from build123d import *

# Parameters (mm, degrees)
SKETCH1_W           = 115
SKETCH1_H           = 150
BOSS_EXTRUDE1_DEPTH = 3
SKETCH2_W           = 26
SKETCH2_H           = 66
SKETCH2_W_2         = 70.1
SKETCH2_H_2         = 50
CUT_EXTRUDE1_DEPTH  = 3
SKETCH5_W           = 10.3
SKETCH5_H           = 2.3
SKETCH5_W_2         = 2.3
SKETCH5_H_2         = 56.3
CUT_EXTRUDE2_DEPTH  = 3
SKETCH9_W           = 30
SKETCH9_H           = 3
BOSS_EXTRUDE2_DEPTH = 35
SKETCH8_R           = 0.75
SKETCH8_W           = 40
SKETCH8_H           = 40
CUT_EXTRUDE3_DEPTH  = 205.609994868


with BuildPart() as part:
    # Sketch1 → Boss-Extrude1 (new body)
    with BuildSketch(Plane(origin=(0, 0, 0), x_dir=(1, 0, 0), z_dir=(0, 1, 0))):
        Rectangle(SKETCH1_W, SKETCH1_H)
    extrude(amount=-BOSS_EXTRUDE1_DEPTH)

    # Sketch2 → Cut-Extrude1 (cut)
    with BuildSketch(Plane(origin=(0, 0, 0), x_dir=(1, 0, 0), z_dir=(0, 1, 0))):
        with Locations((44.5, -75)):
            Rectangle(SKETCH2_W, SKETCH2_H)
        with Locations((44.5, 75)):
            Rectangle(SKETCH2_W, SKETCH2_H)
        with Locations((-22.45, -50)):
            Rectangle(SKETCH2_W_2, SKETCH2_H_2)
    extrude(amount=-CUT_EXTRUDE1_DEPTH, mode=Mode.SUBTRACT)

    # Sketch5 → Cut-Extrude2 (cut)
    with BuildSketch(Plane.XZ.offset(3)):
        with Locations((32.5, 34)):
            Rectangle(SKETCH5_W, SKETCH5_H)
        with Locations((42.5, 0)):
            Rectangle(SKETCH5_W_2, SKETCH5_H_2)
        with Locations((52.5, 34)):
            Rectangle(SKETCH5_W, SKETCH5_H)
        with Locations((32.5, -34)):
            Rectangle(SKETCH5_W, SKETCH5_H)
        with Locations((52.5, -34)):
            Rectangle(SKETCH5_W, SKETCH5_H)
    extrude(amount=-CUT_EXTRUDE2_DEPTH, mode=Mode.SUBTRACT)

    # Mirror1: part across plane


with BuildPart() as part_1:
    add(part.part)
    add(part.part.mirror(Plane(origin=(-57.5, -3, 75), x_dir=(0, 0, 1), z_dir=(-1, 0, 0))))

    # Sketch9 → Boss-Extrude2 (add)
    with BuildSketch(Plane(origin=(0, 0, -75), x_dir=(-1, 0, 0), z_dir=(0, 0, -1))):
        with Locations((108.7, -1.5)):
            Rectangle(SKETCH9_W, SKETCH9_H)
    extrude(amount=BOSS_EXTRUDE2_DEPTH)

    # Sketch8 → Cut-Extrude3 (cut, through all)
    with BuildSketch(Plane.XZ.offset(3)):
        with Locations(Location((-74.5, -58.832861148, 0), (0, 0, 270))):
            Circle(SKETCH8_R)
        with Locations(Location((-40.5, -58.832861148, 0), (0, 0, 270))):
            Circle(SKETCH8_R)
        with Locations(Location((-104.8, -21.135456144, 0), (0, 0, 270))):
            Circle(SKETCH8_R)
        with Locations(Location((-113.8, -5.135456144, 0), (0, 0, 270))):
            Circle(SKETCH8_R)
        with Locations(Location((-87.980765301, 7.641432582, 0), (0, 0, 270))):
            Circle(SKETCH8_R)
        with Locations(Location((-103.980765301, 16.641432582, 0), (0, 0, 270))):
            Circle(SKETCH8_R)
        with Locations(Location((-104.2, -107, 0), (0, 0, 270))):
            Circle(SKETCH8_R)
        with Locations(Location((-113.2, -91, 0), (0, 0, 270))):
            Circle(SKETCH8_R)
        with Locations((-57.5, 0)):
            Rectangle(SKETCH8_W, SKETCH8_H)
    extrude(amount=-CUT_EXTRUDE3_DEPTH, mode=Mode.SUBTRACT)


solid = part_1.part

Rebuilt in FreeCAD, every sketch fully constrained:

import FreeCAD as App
import Part
import Sketcher
from FreeCAD import Vector

doc = App.newDocument("Part")
body = doc.addObject("PartDesign::Body", "Body")

sketch1 = body.newObject("Sketcher::SketchObject", "Sketch")
sketch1.AttachmentSupport = (doc.getObject("XZ_Plane"), [""])
sketch1.MapMode = "FlatFace"
sketch1.addGeometry(Part.LineSegment(Vector(-58, -75, 0), Vector(-58, 75, 0)), False)
sketch1.addGeometry(Part.LineSegment(Vector(-58, 75, 0), Vector(58, 75, 0)), False)
sketch1.addGeometry(Part.LineSegment(Vector(58, 75, 0), Vector(58, -75, 0)), False)
sketch1.addGeometry(Part.LineSegment(Vector(58, -75, 0), Vector(-58, -75, 0)), False)
sketch1.addConstraint(Sketcher.Constraint("Coincident", 0, 2, 1, 1))
sketch1.addConstraint(Sketcher.Constraint("Coincident", 1, 2, 2, 1))
sketch1.addConstraint(Sketcher.Constraint("Coincident", 2, 2, 3, 1))
sketch1.addConstraint(Sketcher.Constraint("Coincident", 3, 2, 0, 1))
sketch1.addConstraint(Sketcher.Constraint("Vertical", 0))
sketch1.addConstraint(Sketcher.Constraint("Horizontal", 1))
sketch1.addConstraint(Sketcher.Constraint("Vertical", 2))
sketch1.addConstraint(Sketcher.Constraint("Horizontal", 3))
sketch1.addConstraint(Sketcher.Constraint("Symmetric", 0, 2, 2, 2, -1, 1))
sketch1.addConstraint(Sketcher.Constraint("DistanceX", 1, 1, 1, 2, 115.0))
sketch1.addConstraint(Sketcher.Constraint("DistanceY", 0, 1, 0, 2, 150.0))
pad1 = body.newObject("PartDesign::Pad", "Pad")
pad1.Profile = sketch1
pad1.Length = 3

sketch2 = body.newObject("Sketcher::SketchObject", "Sketch001")
sketch2.AttachmentSupport = (doc.getObject("XZ_Plane"), [""])
sketch2.MapMode = "FlatFace"
sketch2.addGeometry(Part.LineSegment(Vector(32, 42, 0), Vector(32, 108, 0)), False)
sketch2.addGeometry(Part.LineSegment(Vector(32, 108, 0), Vector(58, 108, 0)), False)
sketch2.addGeometry(Part.LineSegment(Vector(58, 108, 0), Vector(58, 42, 0)), False)
sketch2.addGeometry(Part.LineSegment(Vector(58, 42, 0), Vector(32, 42, 0)), False)
sketch2.addGeometry(Part.LineSegment(Vector(32, -108, 0), Vector(32, -42, 0)), False)
sketch2.addGeometry(Part.LineSegment(Vector(32, -42, 0), Vector(58, -42, 0)), False)
sketch2.addGeometry(Part.LineSegment(Vector(58, -42, 0), Vector(58, -108, 0)), False)
sketch2.addGeometry(Part.LineSegment(Vector(58, -108, 0), Vector(32, -108, 0)), False)
sketch2.addGeometry(Part.LineSegment(Vector(-58, 25, 0), Vector(-58, 75, 0)), False)
sketch2.addGeometry(Part.LineSegment(Vector(-58, 75, 0), Vector(13, 75, 0)), False)
sketch2.addGeometry(Part.LineSegment(Vector(13, 75, 0), Vector(13, 25, 0)), False)
sketch2.addGeometry(Part.LineSegment(Vector(13, 25, 0), Vector(-58, 25, 0)), False)
sketch2.addConstraint(Sketcher.Constraint("Coincident", 0, 2, 1, 1))
sketch2.addConstraint(Sketcher.Constraint("Coincident", 1, 2, 2, 1))
sketch2.addConstraint(Sketcher.Constraint("Coincident", 2, 2, 3, 1))
sketch2.addConstraint(Sketcher.Constraint("Coincident", 3, 2, 0, 1))
sketch2.addConstraint(Sketcher.Constraint("Coincident", 4, 2, 5, 1))
sketch2.addConstraint(Sketcher.Constraint("Coincident", 5, 2, 6, 1))
sketch2.addConstraint(Sketcher.Constraint("Coincident", 6, 2, 7, 1))
sketch2.addConstraint(Sketcher.Constraint("Coincident", 7, 2, 4, 1))
sketch2.addConstraint(Sketcher.Constraint("Coincident", 8, 2, 9, 1))
sketch2.addConstraint(Sketcher.Constraint("Coincident", 9, 2, 10, 1))
sketch2.addConstraint(Sketcher.Constraint("Coincident", 10, 2, 11, 1))
sketch2.addConstraint(Sketcher.Constraint("Coincident", 11, 2, 8, 1))
sketch2.addConstraint(Sketcher.Constraint("Vertical", 0))
sketch2.addConstraint(Sketcher.Constraint("Horizontal", 1))
sketch2.addConstraint(Sketcher.Constraint("Vertical", 2))
sketch2.addConstraint(Sketcher.Constraint("Horizontal", 3))
sketch2.addConstraint(Sketcher.Constraint("Vertical", 4))
sketch2.addConstraint(Sketcher.Constraint("Horizontal", 5))
sketch2.addConstraint(Sketcher.Constraint("Vertical", 6))
sketch2.addConstraint(Sketcher.Constraint("Horizontal", 7))
sketch2.addConstraint(Sketcher.Constraint("Vertical", 8))
sketch2.addConstraint(Sketcher.Constraint("Horizontal", 9))
sketch2.addConstraint(Sketcher.Constraint("Vertical", 10))
sketch2.addConstraint(Sketcher.Constraint("Horizontal", 11))
sketch2.addConstraint(Sketcher.Constraint("Symmetric", 3, 2, 4, 2, -1))
sketch2.addConstraint(Sketcher.Constraint("Symmetric", 1, 2, 6, 2, -1))
sketch2.addConstraint(Sketcher.Constraint("DistanceX", 1, 1, 1, 2, 26.0))
sketch2.addConstraint(Sketcher.Constraint("DistanceY", 0, 1, 0, 2, 66.0))
sketch2.addConstraint(Sketcher.Constraint("DistanceY", 8, 1, 8, 2, 50.0))
sketch2.addConstraint(Sketcher.Constraint("DistanceX", 9, 1, 9, 2, 70.1))
sketch2.addConstraint(Sketcher.Constraint("DistanceY", -1, 1, 0, 2, 108.0))
sketch2.addConstraint(Sketcher.Constraint("DistanceY", -1, 1, 8, 2, 75.0))
sketch2.addConstraint(Sketcher.Constraint("DistanceX", 8, 2, 0, 2, 89.0))
sketch2.addConstraint(Sketcher.Constraint("DistanceX", -1, 1, 0, 2, 31.5))
pocket1 = body.newObject("PartDesign::Pocket", "Pocket")
pocket1.Profile = sketch2
pocket1.Length = 3
pocket1.Reversed = True

sketch3 = body.newObject("Sketcher::SketchObject", "Sketch002")
sketch3.AttachmentSupport = (doc.getObject("XZ_Plane"), [""])
sketch3.MapMode = "FlatFace"
sketch3.AttachmentOffset = App.Placement(Vector(0, 0, 3), App.Rotation())
sketch3.addGeometry(Part.LineSegment(Vector(27.4, 35.1, 0), Vector(27.4, 32.9, 0)), False)
sketch3.addGeometry(Part.LineSegment(Vector(27.4, 32.9, 0), Vector(37.6, 32.9, 0)), False)
sketch3.addGeometry(Part.LineSegment(Vector(37.6, 32.9, 0), Vector(37.6, 35.1, 0)), False)
sketch3.addGeometry(Part.LineSegment(Vector(37.6, 35.1, 0), Vector(27.4, 35.1, 0)), False)
sketch3.addGeometry(Part.LineSegment(Vector(41.4, 28.1, 0), Vector(41.4, -28.1, 0)), False)
sketch3.addGeometry(Part.LineSegment(Vector(41.4, -28.1, 0), Vector(43.6, -28.1, 0)), False)
sketch3.addGeometry(Part.LineSegment(Vector(43.6, -28.1, 0), Vector(43.6, 28.1, 0)), False)
sketch3.addGeometry(Part.LineSegment(Vector(43.6, 28.1, 0), Vector(41.4, 28.1, 0)), False)
sketch3.addGeometry(Part.LineSegment(Vector(47.4, 35.1, 0), Vector(47.4, 32.9, 0)), False)
sketch3.addGeometry(Part.LineSegment(Vector(47.4, 32.9, 0), Vector(57.6, 32.9, 0)), False)
sketch3.addGeometry(Part.LineSegment(Vector(57.6, 32.9, 0), Vector(57.6, 35.1, 0)), False)
sketch3.addGeometry(Part.LineSegment(Vector(57.6, 35.1, 0), Vector(47.4, 35.1, 0)), False)
sketch3.addGeometry(Part.LineSegment(Vector(27.4, -32.9, 0), Vector(27.4, -35.1, 0)), False)
sketch3.addGeometry(Part.LineSegment(Vector(27.4, -35.1, 0), Vector(37.6, -35.1, 0)), False)
sketch3.addGeometry(Part.LineSegment(Vector(37.6, -35.1, 0), Vector(37.6, -32.9, 0)), False)
sketch3.addGeometry(Part.LineSegment(Vector(37.6, -32.9, 0), Vector(27.4, -32.9, 0)), False)
sketch3.addGeometry(Part.LineSegment(Vector(47.4, -32.9, 0), Vector(47.4, -35.1, 0)), False)
sketch3.addGeometry(Part.LineSegment(Vector(47.4, -35.1, 0), Vector(57.6, -35.1, 0)), False)
sketch3.addGeometry(Part.LineSegment(Vector(57.6, -35.1, 0), Vector(57.6, -32.9, 0)), False)
sketch3.addGeometry(Part.LineSegment(Vector(57.6, -32.9, 0), Vector(47.4, -32.9, 0)), False)
sketch3.addConstraint(Sketcher.Constraint("Coincident", 0, 2, 1, 1))
sketch3.addConstraint(Sketcher.Constraint("Coincident", 1, 2, 2, 1))
sketch3.addConstraint(Sketcher.Constraint("Coincident", 2, 2, 3, 1))
sketch3.addConstraint(Sketcher.Constraint("Coincident", 3, 2, 0, 1))
sketch3.addConstraint(Sketcher.Constraint("Coincident", 4, 2, 5, 1))
sketch3.addConstraint(Sketcher.Constraint("Coincident", 5, 2, 6, 1))
sketch3.addConstraint(Sketcher.Constraint("Coincident", 6, 2, 7, 1))
sketch3.addConstraint(Sketcher.Constraint("Coincident", 7, 2, 4, 1))
sketch3.addConstraint(Sketcher.Constraint("Coincident", 8, 2, 9, 1))
sketch3.addConstraint(Sketcher.Constraint("Coincident", 9, 2, 10, 1))
sketch3.addConstraint(Sketcher.Constraint("Coincident", 10, 2, 11, 1))
sketch3.addConstraint(Sketcher.Constraint("Coincident", 11, 2, 8, 1))
sketch3.addConstraint(Sketcher.Constraint("Coincident", 12, 2, 13, 1))
sketch3.addConstraint(Sketcher.Constraint("Coincident", 13, 2, 14, 1))
sketch3.addConstraint(Sketcher.Constraint("Coincident", 14, 2, 15, 1))
sketch3.addConstraint(Sketcher.Constraint("Coincident", 15, 2, 12, 1))
sketch3.addConstraint(Sketcher.Constraint("Coincident", 16, 2, 17, 1))
sketch3.addConstraint(Sketcher.Constraint("Coincident", 17, 2, 18, 1))
sketch3.addConstraint(Sketcher.Constraint("Coincident", 18, 2, 19, 1))
sketch3.addConstraint(Sketcher.Constraint("Coincident", 19, 2, 16, 1))
sketch3.addConstraint(Sketcher.Constraint("Vertical", 0))
sketch3.addConstraint(Sketcher.Constraint("Horizontal", 1))
sketch3.addConstraint(Sketcher.Constraint("Vertical", 2))
sketch3.addConstraint(Sketcher.Constraint("Horizontal", 3))
sketch3.addConstraint(Sketcher.Constraint("Vertical", 4))
sketch3.addConstraint(Sketcher.Constraint("Horizontal", 5))
sketch3.addConstraint(Sketcher.Constraint("Vertical", 6))
sketch3.addConstraint(Sketcher.Constraint("Horizontal", 7))
sketch3.addConstraint(Sketcher.Constraint("Vertical", 8))
sketch3.addConstraint(Sketcher.Constraint("Horizontal", 9))
sketch3.addConstraint(Sketcher.Constraint("Vertical", 10))
sketch3.addConstraint(Sketcher.Constraint("Horizontal", 11))
sketch3.addConstraint(Sketcher.Constraint("Vertical", 12))
sketch3.addConstraint(Sketcher.Constraint("Horizontal", 13))
sketch3.addConstraint(Sketcher.Constraint("Vertical", 14))
sketch3.addConstraint(Sketcher.Constraint("Horizontal", 15))
sketch3.addConstraint(Sketcher.Constraint("Vertical", 16))
sketch3.addConstraint(Sketcher.Constraint("Horizontal", 17))
sketch3.addConstraint(Sketcher.Constraint("Vertical", 18))
sketch3.addConstraint(Sketcher.Constraint("Horizontal", 19))
sketch3.addConstraint(Sketcher.Constraint("Symmetric", 3, 2, 12, 2, -1))
sketch3.addConstraint(Sketcher.Constraint("Symmetric", 1, 2, 14, 2, -1))
sketch3.addConstraint(Sketcher.Constraint("Symmetric", 11, 2, 16, 2, -1))
sketch3.addConstraint(Sketcher.Constraint("Symmetric", 9, 2, 18, 2, -1))
sketch3.addConstraint(Sketcher.Constraint("Horizontal", 1, 2, 8, 2))
sketch3.addConstraint(Sketcher.Constraint("Horizontal", 3, 2, 10, 2))
sketch3.addConstraint(Sketcher.Constraint("Equal", 3, 9))
sketch3.addConstraint(Sketcher.Constraint("Equal", 7, 0))
sketch3.addConstraint(Sketcher.Constraint("DistanceX", 1, 1, 1, 2, 10.3))
sketch3.addConstraint(Sketcher.Constraint("DistanceX", 5, 1, 5, 2, 2.3))
sketch3.addConstraint(Sketcher.Constraint("DistanceY", 4, 2, 4, 1, 56.3))
sketch3.addConstraint(Sketcher.Constraint("DistanceY", 4, 2, 1, 2, 61.0))
sketch3.addConstraint(Sketcher.Constraint("DistanceX", 0, 2, 4, 2, 14.0))
sketch3.addConstraint(Sketcher.Constraint("DistanceX", 7, 2, 8, 2, 6.0))
sketch3.addConstraint(Sketcher.Constraint("DistanceY", 12, 2, 4, 2, 7.0))
sketch3.addConstraint(Sketcher.Constraint("DistanceX", -1, 1, 0, 2, 27.35))
pocket2 = body.newObject("PartDesign::Pocket", "Pocket001")
pocket2.Profile = sketch3
pocket2.Length = 3
body2 = doc.addObject("PartDesign::Body", "Body001")
doc.recompute()

body2.BaseFeature = body
doc.recompute()

mirroring = doc.addObject("Part::Mirroring", "Mirroring")
mirroring.Source = body
mirroring.Base = Vector(-57.5, -3, 75)
mirroring.Normal = Vector(-1, 0, 0)
body3 = doc.addObject("PartDesign::Body", "Body002")
body3.BaseFeature = mirroring
boolean = body2.newObject("PartDesign::Boolean", "Boolean")
boolean.Type = "Fuse"
boolean.addObjects([body3])
doc.recompute()

sketch4 = body2.newObject("Sketcher::SketchObject", "Sketch003")
sketch4.AttachmentSupport = (doc.getObject("XY_Plane001"), [""])
sketch4.MapMode = "FlatFace"
sketch4.AttachmentOffset = App.Placement(Vector(0, 0, -75), App.Rotation())
sketch4.addGeometry(Part.LineSegment(Vector(-93.7, 0, 0), Vector(-93.7, -3, 0)), False)
sketch4.addGeometry(Part.LineSegment(Vector(-93.7, -3, 0), Vector(-123.7, -3, 0)), False)
sketch4.addGeometry(Part.LineSegment(Vector(-123.7, -3, 0), Vector(-123.7, 0, 0)), False)
sketch4.addGeometry(Part.LineSegment(Vector(-123.7, 0, 0), Vector(-93.7, 0, 0)), False)
sketch4.addConstraint(Sketcher.Constraint("Coincident", 0, 2, 1, 1))
sketch4.addConstraint(Sketcher.Constraint("Coincident", 1, 2, 2, 1))
sketch4.addConstraint(Sketcher.Constraint("Coincident", 2, 2, 3, 1))
sketch4.addConstraint(Sketcher.Constraint("Coincident", 3, 2, 0, 1))
sketch4.addConstraint(Sketcher.Constraint("Vertical", 0))
sketch4.addConstraint(Sketcher.Constraint("Horizontal", 1))
sketch4.addConstraint(Sketcher.Constraint("Vertical", 2))
sketch4.addConstraint(Sketcher.Constraint("Horizontal", 3))
sketch4.addConstraint(Sketcher.Constraint("PointOnObject", 2, 2, -1))
sketch4.addConstraint(Sketcher.Constraint("DistanceX", 1, 2, 1, 1, 30.0))
sketch4.addConstraint(Sketcher.Constraint("DistanceY", 0, 2, 0, 1, 3.0))
sketch4.addConstraint(Sketcher.Constraint("DistanceX", 0, 2, -1, 1, 93.7))
pad2 = body2.newObject("PartDesign::Pad", "Pad001")
pad2.Profile = sketch4
pad2.Length = 35
pad2.Reversed = True

sketch5 = body2.newObject("Sketcher::SketchObject", "Sketch004")
sketch5.AttachmentSupport = (doc.getObject("XZ_Plane001"), [""])
sketch5.MapMode = "FlatFace"
sketch5.AttachmentOffset = App.Placement(Vector(0, 0, 3), App.Rotation())
sketch5.addGeometry(Part.Circle(Vector(-74.5, -58.8, 0), Vector(0, 0, 1), 0.8), False)
sketch5.addGeometry(Part.Circle(Vector(-40.5, -58.8, 0), Vector(0, 0, 1), 0.8), False)
sketch5.addGeometry(Part.Circle(Vector(-104.8, -21.1, 0), Vector(0, 0, 1), 0.8), False)
sketch5.addGeometry(Part.Circle(Vector(-113.8, -5.1, 0), Vector(0, 0, 1), 0.8), False)
sketch5.addGeometry(Part.Circle(Vector(-88, 7.6, 0), Vector(0, 0, 1), 0.8), False)
sketch5.addGeometry(Part.Circle(Vector(-104, 16.6, 0), Vector(0, 0, 1), 0.8), False)
sketch5.addGeometry(Part.Circle(Vector(-104.2, -107, 0), Vector(0, 0, 1), 0.8), False)
sketch5.addGeometry(Part.Circle(Vector(-113.2, -91, 0), Vector(0, 0, 1), 0.8), False)
sketch5.addGeometry(Part.LineSegment(Vector(-77.5, 20, 0), Vector(-77.5, -20, 0)), False)
sketch5.addGeometry(Part.LineSegment(Vector(-77.5, -20, 0), Vector(-37.5, -20, 0)), False)
sketch5.addGeometry(Part.LineSegment(Vector(-37.5, -20, 0), Vector(-37.5, 20, 0)), False)
sketch5.addGeometry(Part.LineSegment(Vector(-37.5, 20, 0), Vector(-77.5, 20, 0)), False)
sketch5.addConstraint(Sketcher.Constraint("Coincident", 8, 2, 9, 1))
sketch5.addConstraint(Sketcher.Constraint("Coincident", 9, 2, 10, 1))
sketch5.addConstraint(Sketcher.Constraint("Coincident", 10, 2, 11, 1))
sketch5.addConstraint(Sketcher.Constraint("Coincident", 11, 2, 8, 1))
sketch5.addConstraint(Sketcher.Constraint("Vertical", 8))
sketch5.addConstraint(Sketcher.Constraint("Horizontal", 9))
sketch5.addConstraint(Sketcher.Constraint("Vertical", 10))
sketch5.addConstraint(Sketcher.Constraint("Horizontal", 11))
sketch5.addConstraint(Sketcher.Constraint("Equal", 0, 1))
sketch5.addConstraint(Sketcher.Constraint("Equal", 1, 2))
sketch5.addConstraint(Sketcher.Constraint("Equal", 2, 3))
sketch5.addConstraint(Sketcher.Constraint("Equal", 3, 4))
sketch5.addConstraint(Sketcher.Constraint("Equal", 4, 5))
sketch5.addConstraint(Sketcher.Constraint("Equal", 5, 6))
sketch5.addConstraint(Sketcher.Constraint("Equal", 6, 7))
sketch5.addConstraint(Sketcher.Constraint("Horizontal", 0, 3, 1, 3))
sketch5.addConstraint(Sketcher.Constraint("Equal", 11, 8))
sketch5.addConstraint(Sketcher.Constraint("Diameter", 0, 1.5))
sketch5.addConstraint(Sketcher.Constraint("DistanceX", 9, 1, 9, 2, 40.0))
sketch5.addConstraint(Sketcher.Constraint("DistanceY", 6, 3, -1, 1, 107.0))
sketch5.addConstraint(Sketcher.Constraint("DistanceY", 7, 3, -1, 1, 91.0))
sketch5.addConstraint(Sketcher.Constraint("DistanceY", 8, 2, -1, 1, 20.0))
sketch5.addConstraint(Sketcher.Constraint("DistanceX", 0, 3, 1, 3, 34.0))
sketch5.addConstraint(Sketcher.Constraint("DistanceX", 3, 3, 2, 3, 9.0))
sketch5.addConstraint(Sketcher.Constraint("DistanceY", 2, 3, 3, 3, 16.0))
sketch5.addConstraint(Sketcher.Constraint("DistanceX", 5, 3, 4, 3, 16.0))
sketch5.addConstraint(Sketcher.Constraint("DistanceY", 4, 3, 5, 3, 9.0))
sketch5.addConstraint(Sketcher.Constraint("DistanceX", 7, 3, 6, 3, 9.0))
sketch5.addConstraint(Sketcher.Constraint("DistanceX", 8, 2, 0, 3, 3.0))
sketch5.addConstraint(Sketcher.Constraint("DistanceX", 0, 3, -1, 1, 74.5))
sketch5.addConstraint(Sketcher.Constraint("DistanceX", 2, 3, -1, 1, 104.8))
sketch5.addConstraint(Sketcher.Constraint("DistanceX", 6, 3, -1, 1, 104.2))
sketch5.addConstraint(Sketcher.Constraint("DistanceY", 0, 3, -1, 1, 58.832861))
sketch5.addConstraint(Sketcher.Constraint("DistanceY", 3, 3, 4, 3, 12.776889))
sketch5.addConstraint(Sketcher.Constraint("DistanceY", 2, 3, -1, 1, 21.135456))
sketch5.addConstraint(Sketcher.Constraint("DistanceX", 4, 3, -1, 1, 87.980765))
pocket3 = body2.newObject("PartDesign::Pocket", "Pocket002")
pocket3.Profile = sketch5
pocket3.Type = "ThroughAll"
mirroring.Visibility = False

doc.recompute()
